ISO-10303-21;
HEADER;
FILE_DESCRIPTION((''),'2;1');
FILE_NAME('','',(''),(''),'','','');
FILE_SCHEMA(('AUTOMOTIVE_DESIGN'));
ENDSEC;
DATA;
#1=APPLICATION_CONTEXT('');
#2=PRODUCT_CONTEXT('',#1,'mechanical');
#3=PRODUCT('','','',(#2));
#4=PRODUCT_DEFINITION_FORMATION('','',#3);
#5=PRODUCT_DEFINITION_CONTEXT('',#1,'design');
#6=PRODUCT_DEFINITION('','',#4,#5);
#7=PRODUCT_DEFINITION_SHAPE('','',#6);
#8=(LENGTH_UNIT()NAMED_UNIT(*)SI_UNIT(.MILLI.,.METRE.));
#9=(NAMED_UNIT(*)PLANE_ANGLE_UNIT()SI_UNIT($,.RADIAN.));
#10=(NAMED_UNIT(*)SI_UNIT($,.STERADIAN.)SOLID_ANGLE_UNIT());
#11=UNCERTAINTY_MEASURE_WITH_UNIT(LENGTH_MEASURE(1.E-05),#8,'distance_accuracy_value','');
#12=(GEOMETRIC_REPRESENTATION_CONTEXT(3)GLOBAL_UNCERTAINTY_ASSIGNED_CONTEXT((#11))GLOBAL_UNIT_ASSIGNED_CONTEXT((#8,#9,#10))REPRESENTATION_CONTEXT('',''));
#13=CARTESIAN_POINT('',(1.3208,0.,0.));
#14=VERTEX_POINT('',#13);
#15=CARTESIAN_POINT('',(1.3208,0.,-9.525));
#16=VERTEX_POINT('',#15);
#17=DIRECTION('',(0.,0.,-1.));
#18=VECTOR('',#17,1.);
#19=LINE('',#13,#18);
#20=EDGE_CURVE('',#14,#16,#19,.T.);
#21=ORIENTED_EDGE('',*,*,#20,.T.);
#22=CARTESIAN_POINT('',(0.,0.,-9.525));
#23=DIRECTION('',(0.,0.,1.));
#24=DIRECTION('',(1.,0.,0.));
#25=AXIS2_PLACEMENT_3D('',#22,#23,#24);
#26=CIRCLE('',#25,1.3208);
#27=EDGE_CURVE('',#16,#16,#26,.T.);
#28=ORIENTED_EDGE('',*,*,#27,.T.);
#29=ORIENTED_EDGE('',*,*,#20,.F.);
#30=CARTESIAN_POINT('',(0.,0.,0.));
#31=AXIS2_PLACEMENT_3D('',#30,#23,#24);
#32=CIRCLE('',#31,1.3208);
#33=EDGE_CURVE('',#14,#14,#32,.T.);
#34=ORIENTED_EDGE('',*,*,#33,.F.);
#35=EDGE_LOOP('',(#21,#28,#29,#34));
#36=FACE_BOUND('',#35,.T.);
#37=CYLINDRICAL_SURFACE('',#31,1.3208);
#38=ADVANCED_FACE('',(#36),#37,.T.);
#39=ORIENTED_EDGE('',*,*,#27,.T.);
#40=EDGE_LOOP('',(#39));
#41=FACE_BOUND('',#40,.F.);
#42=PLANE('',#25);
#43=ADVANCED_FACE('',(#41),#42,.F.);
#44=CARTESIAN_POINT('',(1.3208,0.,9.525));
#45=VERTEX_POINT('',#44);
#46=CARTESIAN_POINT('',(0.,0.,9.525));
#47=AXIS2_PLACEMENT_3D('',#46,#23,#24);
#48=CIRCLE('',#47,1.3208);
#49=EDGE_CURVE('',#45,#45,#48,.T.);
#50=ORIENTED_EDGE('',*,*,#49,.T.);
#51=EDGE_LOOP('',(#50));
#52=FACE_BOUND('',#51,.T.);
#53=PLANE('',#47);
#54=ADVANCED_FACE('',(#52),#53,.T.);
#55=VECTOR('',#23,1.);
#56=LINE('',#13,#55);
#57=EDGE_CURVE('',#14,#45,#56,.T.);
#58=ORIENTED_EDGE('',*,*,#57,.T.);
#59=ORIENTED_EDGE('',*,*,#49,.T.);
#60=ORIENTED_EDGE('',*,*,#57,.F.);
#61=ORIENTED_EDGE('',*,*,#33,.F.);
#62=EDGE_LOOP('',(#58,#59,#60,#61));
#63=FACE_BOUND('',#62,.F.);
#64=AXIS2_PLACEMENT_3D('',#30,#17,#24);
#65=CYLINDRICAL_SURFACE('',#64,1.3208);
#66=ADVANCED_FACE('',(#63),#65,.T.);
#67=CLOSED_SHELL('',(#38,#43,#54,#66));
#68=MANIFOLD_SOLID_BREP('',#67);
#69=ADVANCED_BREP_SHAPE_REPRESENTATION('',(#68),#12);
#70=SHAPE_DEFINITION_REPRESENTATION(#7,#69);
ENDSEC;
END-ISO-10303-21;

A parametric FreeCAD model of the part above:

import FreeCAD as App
import Part
import Sketcher
from FreeCAD import Vector
Q = App.Units.Quantity

doc = App.newDocument("Part")
body = doc.addObject("PartDesign::Body", "Body")

# Sketch on XY plane
sketch1 = doc.addObject("Sketcher::SketchObject", "Sketch")
body.addObject(sketch1)
sketch1.AttachmentSupport = (doc.XY_Plane, [""])
sketch1.MapMode = "FlatFace"
sketch1.addGeometry(Part.Circle(Vector(0, 0, 0), Vector(0, 0, 1), 1.3), False)
sketch1.addConstraint([
    Sketcher.Constraint("Coincident", 0, 3, -1, 1),
    Sketcher.Constraint("Diameter", 0, Q("0.104 in")),
])
pad1 = doc.addObject("PartDesign::Pad", "Pad")
body.addObject(pad1)
pad1.Profile = sketch1
pad1.Length = Q("0.75 in")
pad1.Midplane = True

doc.recompute()
